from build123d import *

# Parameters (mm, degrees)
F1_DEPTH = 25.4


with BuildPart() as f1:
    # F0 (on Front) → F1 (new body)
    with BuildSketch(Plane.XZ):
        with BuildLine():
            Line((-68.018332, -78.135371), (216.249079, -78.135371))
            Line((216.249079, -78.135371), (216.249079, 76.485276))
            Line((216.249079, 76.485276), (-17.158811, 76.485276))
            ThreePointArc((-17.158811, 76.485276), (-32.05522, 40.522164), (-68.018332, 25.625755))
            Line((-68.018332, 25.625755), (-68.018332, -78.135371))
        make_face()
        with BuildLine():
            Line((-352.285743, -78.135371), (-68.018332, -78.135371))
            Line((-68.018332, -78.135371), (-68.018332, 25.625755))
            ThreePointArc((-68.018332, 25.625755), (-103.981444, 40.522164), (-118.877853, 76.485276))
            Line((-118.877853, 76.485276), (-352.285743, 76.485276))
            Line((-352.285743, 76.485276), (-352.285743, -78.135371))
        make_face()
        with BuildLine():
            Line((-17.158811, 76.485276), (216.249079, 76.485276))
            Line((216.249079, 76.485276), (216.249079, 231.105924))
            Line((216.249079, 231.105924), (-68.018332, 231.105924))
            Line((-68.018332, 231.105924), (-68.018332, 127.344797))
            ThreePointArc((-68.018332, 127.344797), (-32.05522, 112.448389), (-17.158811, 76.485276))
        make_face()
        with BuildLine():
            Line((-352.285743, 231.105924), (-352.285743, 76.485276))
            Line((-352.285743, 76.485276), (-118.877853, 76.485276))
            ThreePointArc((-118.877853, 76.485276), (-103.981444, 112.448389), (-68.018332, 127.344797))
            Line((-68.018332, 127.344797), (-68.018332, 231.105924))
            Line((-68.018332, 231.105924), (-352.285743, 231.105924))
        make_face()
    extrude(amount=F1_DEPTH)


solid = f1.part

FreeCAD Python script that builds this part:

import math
import FreeCAD as App
import Part
import Sketcher


def add_polygon(sketch, points):
    """Adds a closed chain of lines whose ends are joined by coincident constraints."""
    first, n = sketch.GeometryCount, len(points)
    for a, b in zip(points, points[1:] + points[:1]):
        sketch.addGeometry(Part.LineSegment(App.Vector(*a, 0), App.Vector(*b, 0)), False)
    for i in range(n):
        sketch.addConstraint(Sketcher.Constraint("Coincident", first + i, 2, first + (i + 1) % n, 1))

doc = App.newDocument("Part")
params = doc.addObject("Spreadsheet::Sheet", "Params")
for row, (alias, value) in enumerate([
    ("pad1_length", "1 in"),
], start=1):
    params.set(f"A{row}", alias)
    params.set(f"B{row}", "=" + value)
    params.setAlias(f"B{row}", alias)

body = doc.addObject("PartDesign::Body", "Body")

sketch1 = body.newObject("Sketcher::SketchObject", "Sketch")
sketch1.AttachmentSupport = (doc.getObject("XZ_Plane"), [""])
sketch1.MapMode = "FlatFace"
add_polygon(sketch1, [(216.249079, -78.135371), (216.249079, 231.105924), (-352.285743, 231.105924), (-352.285743, -78.135371)])
sketch1.addGeometry(Part.ArcOfCircle(Part.Circle(App.Vector(-68.018331, 76.485277, 0), App.Vector(0, 0, 1), 50.85952), math.radians(-0.000001), math.radians(90.000001)), False)
sketch1.addGeometry(Part.ArcOfCircle(Part.Circle(App.Vector(-68.018333, 76.485277, 0), App.Vector(0, 0, 1), 50.859522), math.radians(-89.999999), math.radians(-0.000001)), False)
sketch1.addGeometry(Part.ArcOfCircle(Part.Circle(App.Vector(-68.018331, 76.485277, 0), App.Vector(0, 0, 1), 50.859522), math.radians(-179.999999), math.radians(-90.000001)), False)
sketch1.addGeometry(Part.ArcOfCircle(Part.Circle(App.Vector(-68.018333, 76.485277, 0), App.Vector(0, 0, 1), 50.85952), math.radians(89.999999), math.radians(180.000001)), False)
sketch1.addConstraint([
    Sketcher.Constraint("Tangent", 4, 1, 5, 2),
    Sketcher.Constraint("Tangent", 5, 1, 6, 2),
    Sketcher.Constraint("Tangent", 6, 1, 7, 2),
    Sketcher.Constraint("Tangent", 7, 1, 4, 2),
    Sketcher.Constraint("Vertical", 0),
    Sketcher.Constraint("Horizontal", 1),
    Sketcher.Constraint("Vertical", 2),
    Sketcher.Constraint("Horizontal", 3),
    Sketcher.Constraint("Equal", 4, 5),
    Sketcher.Constraint("Horizontal", 7, 3, 4, 1),
    Sketcher.Constraint("Horizontal", 4, 1, 6, 1),
    Sketcher.Constraint("Vertical", 7, 3, 5, 1),
    Sketcher.Constraint("Vertical", 5, 1, 7, 1),
    Sketcher.Constraint("Radius", 4, 50.85952),
    Sketcher.Constraint("DistanceX", 1, 2, 1, 1, 568.534822),
    Sketcher.Constraint("DistanceY", 0, 1, 0, 2, 309.241295),
    Sketcher.Constraint("DistanceX", 4, 3, -1, 1, 68.018331),
    Sketcher.Constraint("DistanceX", -1, 1, 0, 2, 216.249079),
    Sketcher.Constraint("DistanceY", 2, 2, -1, 1, 78.135371),
    Sketcher.Constraint("DistanceY", 2, 2, 7, 3, 154.620648),
])
pad1 = body.newObject("PartDesign::Pad", "Pad")
pad1.Profile = sketch1
pad1.setExpression("Length", "Params.pad1_length")

doc.recompute()
